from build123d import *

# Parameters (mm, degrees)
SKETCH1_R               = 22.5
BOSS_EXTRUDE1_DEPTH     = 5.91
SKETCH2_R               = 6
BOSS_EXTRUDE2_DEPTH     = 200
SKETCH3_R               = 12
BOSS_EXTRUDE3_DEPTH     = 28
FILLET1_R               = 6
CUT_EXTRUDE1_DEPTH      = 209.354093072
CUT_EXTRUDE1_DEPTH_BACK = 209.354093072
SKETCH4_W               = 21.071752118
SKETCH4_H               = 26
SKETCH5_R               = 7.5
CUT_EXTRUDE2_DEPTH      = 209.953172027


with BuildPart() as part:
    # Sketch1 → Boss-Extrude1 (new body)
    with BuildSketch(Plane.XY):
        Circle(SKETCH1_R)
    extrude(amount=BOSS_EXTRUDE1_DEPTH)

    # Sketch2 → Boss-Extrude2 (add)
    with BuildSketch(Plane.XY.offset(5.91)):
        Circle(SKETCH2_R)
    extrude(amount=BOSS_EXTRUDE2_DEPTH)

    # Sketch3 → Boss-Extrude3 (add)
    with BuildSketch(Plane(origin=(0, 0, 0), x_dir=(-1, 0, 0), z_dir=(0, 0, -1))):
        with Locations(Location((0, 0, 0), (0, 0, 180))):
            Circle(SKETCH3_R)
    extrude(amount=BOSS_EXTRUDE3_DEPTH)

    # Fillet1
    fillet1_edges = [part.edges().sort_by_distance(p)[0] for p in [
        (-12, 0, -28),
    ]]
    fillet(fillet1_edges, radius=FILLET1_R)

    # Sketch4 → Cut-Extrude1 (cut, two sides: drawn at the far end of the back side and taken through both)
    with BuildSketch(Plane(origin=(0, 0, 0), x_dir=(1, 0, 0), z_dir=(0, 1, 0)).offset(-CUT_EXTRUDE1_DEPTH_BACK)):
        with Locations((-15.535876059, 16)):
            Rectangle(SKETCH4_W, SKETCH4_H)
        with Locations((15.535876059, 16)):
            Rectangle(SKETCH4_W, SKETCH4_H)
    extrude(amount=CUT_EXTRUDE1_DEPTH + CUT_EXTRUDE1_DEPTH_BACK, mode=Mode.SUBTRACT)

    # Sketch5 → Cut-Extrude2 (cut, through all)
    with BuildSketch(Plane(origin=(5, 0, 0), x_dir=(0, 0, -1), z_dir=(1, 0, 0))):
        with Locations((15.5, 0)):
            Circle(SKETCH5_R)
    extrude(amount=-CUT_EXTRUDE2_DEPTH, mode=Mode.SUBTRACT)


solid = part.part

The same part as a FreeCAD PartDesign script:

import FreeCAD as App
import Part
import Sketcher

V = App.Vector
Q = App.Units.Quantity


def edges_at(feature, points):
    """Names of the edges that pass closest to the given points."""
    edges = feature.Shape.Edges
    near = lambda p: min(range(len(edges)), key=lambda i: edges[i].distToShape(Part.Vertex(*p))[0])
    return sorted({f"Edge{near(p) + 1}" for p in points})


def add_polygon(sketch, points):
    """Adds a closed chain of lines whose ends are joined by coincident constraints."""
    first, n = sketch.GeometryCount, len(points)
    for a, b in zip(points, points[1:] + points[:1]):
        sketch.addGeometry(Part.LineSegment(App.Vector(*a, 0), App.Vector(*b, 0)), False)
    for i in range(n):
        sketch.addConstraint(Sketcher.Constraint("Coincident", first + i, 2, first + (i + 1) % n, 1))

doc = App.newDocument("Part")
body = doc.addObject("PartDesign::Body", "Body")

sketch1 = body.newObject("Sketcher::SketchObject", "Sketch")
sketch1.AttachmentSupport = (doc.getObject("XY_Plane"), [""])
sketch1.MapMode = "FlatFace"
sketch1.addGeometry(Part.Circle(V(0, 0, 0), V(0, 0, 1), 22.5), False)
sketch1.addConstraint([
    Sketcher.Constraint("Coincident", 0, 3, -1, 1),
    Sketcher.Constraint("Diameter", 0, Q("45 mm")),
])
pad1 = body.newObject("PartDesign::Pad", "Pad")
pad1.Profile = sketch1
pad1.Length = 5.91

sketch2 = body.newObject("Sketcher::SketchObject", "Sketch001")
sketch2.AttachmentSupport = (doc.getObject("XY_Plane"), [""])
sketch2.MapMode = "FlatFace"
sketch2.AttachmentOffset = App.Placement(V(0, 0, 5.91), App.Rotation())
sketch2.addGeometry(Part.Circle(V(0, 0, 0), V(0, 0, 1), 6), False)
sketch2.addConstraint([
    Sketcher.Constraint("Coincident", 0, 3, -1, 1),
    Sketcher.Constraint("Diameter", 0, Q("12 mm")),
])
pad2 = body.newObject("PartDesign::Pad", "Pad001")
pad2.Profile = sketch2
pad2.Length = 200

sketch3 = body.newObject("Sketcher::SketchObject", "Sketch002")
sketch3.AttachmentSupport = (doc.getObject("XY_Plane"), [""])
sketch3.MapMode = "FlatFace"
sketch3.addGeometry(Part.Circle(V(0, 0, 0), V(0, 0, 1), 12), False)
sketch3.addConstraint([
    Sketcher.Constraint("Coincident", 0, 3, -1, 1),
    Sketcher.Constraint("Diameter", 0, Q("24 mm")),
])
pad3 = body.newObject("PartDesign::Pad", "Pad002")
pad3.Profile = sketch3
pad3.Length = 28
pad3.Reversed = True
doc.recompute()

fillet = body.newObject("PartDesign::Fillet", "Fillet")
fillet.Base = (pad3, edges_at(pad3, [(-12, 0, -28)]))
fillet.Radius = 6

sketch4 = body.newObject("Sketcher::SketchObject", "Sketch003")
sketch4.AttachmentSupport = (doc.getObject("XZ_Plane"), [""])
sketch4.MapMode = "FlatFace"
add_polygon(sketch4, [(-26.071752, -29), (-26.071752, -3), (-5, -3), (-5, -29)])
add_polygon(sketch4, [(5, -29), (5, -3), (26.071752, -3), (26.071752, -29)])
sketch4.addConstraint([
    Sketcher.Constraint("Vertical", 0),
    Sketcher.Constraint("Horizontal", 1),
    Sketcher.Constraint("Vertical", 2),
    Sketcher.Constraint("Horizontal", 3),
    Sketcher.Constraint("Vertical", 4),
    Sketcher.Constraint("Horizontal", 5),
    Sketcher.Constraint("Vertical", 6),
    Sketcher.Constraint("Horizontal", 7),
    Sketcher.Constraint("Symmetric", 1, 2, 4, 2, -2),
    Sketcher.Constraint("Symmetric", 3, 2, 6, 2, -2),
    Sketcher.Constraint("DistanceY", 0, 1, 0, 2, Q("26 mm")),
    Sketcher.Constraint("DistanceY", 0, 2, -1, 1, Q("3 mm")),
    Sketcher.Constraint("DistanceX", 1, 2, -1, 1, Q("5 mm")),
    Sketcher.Constraint("DistanceX", 1, 1, 1, 2, Q("21.071752 mm")),
])
pocket1 = body.newObject("PartDesign::Pocket", "Pocket")
pocket1.Profile = sketch4
pocket1.Type = "ThroughAll"
pocket1.Midplane = True

sketch5 = body.newObject("Sketcher::SketchObject", "Sketch004")
sketch5.AttachmentSupport = (doc.getObject("YZ_Plane"), [""])
sketch5.MapMode = "FlatFace"
sketch5.AttachmentOffset = App.Placement(V(0, 0, 5), App.Rotation())
sketch5.addGeometry(Part.Circle(V(0, -15.5, 0), V(0, 0, 1), 7.5), False)
sketch5.addConstraint([
    Sketcher.Constraint("PointOnObject", 0, 3, -2),
    Sketcher.Constraint("Diameter", 0, Q("15 mm")),
    Sketcher.Constraint("DistanceY", 0, 3, -1, 1, Q("15.5 mm")),
])
pocket2 = body.newObject("PartDesign::Pocket", "Pocket001")
pocket2.Profile = sketch5
pocket2.Type = "ThroughAll"

doc.recompute()
